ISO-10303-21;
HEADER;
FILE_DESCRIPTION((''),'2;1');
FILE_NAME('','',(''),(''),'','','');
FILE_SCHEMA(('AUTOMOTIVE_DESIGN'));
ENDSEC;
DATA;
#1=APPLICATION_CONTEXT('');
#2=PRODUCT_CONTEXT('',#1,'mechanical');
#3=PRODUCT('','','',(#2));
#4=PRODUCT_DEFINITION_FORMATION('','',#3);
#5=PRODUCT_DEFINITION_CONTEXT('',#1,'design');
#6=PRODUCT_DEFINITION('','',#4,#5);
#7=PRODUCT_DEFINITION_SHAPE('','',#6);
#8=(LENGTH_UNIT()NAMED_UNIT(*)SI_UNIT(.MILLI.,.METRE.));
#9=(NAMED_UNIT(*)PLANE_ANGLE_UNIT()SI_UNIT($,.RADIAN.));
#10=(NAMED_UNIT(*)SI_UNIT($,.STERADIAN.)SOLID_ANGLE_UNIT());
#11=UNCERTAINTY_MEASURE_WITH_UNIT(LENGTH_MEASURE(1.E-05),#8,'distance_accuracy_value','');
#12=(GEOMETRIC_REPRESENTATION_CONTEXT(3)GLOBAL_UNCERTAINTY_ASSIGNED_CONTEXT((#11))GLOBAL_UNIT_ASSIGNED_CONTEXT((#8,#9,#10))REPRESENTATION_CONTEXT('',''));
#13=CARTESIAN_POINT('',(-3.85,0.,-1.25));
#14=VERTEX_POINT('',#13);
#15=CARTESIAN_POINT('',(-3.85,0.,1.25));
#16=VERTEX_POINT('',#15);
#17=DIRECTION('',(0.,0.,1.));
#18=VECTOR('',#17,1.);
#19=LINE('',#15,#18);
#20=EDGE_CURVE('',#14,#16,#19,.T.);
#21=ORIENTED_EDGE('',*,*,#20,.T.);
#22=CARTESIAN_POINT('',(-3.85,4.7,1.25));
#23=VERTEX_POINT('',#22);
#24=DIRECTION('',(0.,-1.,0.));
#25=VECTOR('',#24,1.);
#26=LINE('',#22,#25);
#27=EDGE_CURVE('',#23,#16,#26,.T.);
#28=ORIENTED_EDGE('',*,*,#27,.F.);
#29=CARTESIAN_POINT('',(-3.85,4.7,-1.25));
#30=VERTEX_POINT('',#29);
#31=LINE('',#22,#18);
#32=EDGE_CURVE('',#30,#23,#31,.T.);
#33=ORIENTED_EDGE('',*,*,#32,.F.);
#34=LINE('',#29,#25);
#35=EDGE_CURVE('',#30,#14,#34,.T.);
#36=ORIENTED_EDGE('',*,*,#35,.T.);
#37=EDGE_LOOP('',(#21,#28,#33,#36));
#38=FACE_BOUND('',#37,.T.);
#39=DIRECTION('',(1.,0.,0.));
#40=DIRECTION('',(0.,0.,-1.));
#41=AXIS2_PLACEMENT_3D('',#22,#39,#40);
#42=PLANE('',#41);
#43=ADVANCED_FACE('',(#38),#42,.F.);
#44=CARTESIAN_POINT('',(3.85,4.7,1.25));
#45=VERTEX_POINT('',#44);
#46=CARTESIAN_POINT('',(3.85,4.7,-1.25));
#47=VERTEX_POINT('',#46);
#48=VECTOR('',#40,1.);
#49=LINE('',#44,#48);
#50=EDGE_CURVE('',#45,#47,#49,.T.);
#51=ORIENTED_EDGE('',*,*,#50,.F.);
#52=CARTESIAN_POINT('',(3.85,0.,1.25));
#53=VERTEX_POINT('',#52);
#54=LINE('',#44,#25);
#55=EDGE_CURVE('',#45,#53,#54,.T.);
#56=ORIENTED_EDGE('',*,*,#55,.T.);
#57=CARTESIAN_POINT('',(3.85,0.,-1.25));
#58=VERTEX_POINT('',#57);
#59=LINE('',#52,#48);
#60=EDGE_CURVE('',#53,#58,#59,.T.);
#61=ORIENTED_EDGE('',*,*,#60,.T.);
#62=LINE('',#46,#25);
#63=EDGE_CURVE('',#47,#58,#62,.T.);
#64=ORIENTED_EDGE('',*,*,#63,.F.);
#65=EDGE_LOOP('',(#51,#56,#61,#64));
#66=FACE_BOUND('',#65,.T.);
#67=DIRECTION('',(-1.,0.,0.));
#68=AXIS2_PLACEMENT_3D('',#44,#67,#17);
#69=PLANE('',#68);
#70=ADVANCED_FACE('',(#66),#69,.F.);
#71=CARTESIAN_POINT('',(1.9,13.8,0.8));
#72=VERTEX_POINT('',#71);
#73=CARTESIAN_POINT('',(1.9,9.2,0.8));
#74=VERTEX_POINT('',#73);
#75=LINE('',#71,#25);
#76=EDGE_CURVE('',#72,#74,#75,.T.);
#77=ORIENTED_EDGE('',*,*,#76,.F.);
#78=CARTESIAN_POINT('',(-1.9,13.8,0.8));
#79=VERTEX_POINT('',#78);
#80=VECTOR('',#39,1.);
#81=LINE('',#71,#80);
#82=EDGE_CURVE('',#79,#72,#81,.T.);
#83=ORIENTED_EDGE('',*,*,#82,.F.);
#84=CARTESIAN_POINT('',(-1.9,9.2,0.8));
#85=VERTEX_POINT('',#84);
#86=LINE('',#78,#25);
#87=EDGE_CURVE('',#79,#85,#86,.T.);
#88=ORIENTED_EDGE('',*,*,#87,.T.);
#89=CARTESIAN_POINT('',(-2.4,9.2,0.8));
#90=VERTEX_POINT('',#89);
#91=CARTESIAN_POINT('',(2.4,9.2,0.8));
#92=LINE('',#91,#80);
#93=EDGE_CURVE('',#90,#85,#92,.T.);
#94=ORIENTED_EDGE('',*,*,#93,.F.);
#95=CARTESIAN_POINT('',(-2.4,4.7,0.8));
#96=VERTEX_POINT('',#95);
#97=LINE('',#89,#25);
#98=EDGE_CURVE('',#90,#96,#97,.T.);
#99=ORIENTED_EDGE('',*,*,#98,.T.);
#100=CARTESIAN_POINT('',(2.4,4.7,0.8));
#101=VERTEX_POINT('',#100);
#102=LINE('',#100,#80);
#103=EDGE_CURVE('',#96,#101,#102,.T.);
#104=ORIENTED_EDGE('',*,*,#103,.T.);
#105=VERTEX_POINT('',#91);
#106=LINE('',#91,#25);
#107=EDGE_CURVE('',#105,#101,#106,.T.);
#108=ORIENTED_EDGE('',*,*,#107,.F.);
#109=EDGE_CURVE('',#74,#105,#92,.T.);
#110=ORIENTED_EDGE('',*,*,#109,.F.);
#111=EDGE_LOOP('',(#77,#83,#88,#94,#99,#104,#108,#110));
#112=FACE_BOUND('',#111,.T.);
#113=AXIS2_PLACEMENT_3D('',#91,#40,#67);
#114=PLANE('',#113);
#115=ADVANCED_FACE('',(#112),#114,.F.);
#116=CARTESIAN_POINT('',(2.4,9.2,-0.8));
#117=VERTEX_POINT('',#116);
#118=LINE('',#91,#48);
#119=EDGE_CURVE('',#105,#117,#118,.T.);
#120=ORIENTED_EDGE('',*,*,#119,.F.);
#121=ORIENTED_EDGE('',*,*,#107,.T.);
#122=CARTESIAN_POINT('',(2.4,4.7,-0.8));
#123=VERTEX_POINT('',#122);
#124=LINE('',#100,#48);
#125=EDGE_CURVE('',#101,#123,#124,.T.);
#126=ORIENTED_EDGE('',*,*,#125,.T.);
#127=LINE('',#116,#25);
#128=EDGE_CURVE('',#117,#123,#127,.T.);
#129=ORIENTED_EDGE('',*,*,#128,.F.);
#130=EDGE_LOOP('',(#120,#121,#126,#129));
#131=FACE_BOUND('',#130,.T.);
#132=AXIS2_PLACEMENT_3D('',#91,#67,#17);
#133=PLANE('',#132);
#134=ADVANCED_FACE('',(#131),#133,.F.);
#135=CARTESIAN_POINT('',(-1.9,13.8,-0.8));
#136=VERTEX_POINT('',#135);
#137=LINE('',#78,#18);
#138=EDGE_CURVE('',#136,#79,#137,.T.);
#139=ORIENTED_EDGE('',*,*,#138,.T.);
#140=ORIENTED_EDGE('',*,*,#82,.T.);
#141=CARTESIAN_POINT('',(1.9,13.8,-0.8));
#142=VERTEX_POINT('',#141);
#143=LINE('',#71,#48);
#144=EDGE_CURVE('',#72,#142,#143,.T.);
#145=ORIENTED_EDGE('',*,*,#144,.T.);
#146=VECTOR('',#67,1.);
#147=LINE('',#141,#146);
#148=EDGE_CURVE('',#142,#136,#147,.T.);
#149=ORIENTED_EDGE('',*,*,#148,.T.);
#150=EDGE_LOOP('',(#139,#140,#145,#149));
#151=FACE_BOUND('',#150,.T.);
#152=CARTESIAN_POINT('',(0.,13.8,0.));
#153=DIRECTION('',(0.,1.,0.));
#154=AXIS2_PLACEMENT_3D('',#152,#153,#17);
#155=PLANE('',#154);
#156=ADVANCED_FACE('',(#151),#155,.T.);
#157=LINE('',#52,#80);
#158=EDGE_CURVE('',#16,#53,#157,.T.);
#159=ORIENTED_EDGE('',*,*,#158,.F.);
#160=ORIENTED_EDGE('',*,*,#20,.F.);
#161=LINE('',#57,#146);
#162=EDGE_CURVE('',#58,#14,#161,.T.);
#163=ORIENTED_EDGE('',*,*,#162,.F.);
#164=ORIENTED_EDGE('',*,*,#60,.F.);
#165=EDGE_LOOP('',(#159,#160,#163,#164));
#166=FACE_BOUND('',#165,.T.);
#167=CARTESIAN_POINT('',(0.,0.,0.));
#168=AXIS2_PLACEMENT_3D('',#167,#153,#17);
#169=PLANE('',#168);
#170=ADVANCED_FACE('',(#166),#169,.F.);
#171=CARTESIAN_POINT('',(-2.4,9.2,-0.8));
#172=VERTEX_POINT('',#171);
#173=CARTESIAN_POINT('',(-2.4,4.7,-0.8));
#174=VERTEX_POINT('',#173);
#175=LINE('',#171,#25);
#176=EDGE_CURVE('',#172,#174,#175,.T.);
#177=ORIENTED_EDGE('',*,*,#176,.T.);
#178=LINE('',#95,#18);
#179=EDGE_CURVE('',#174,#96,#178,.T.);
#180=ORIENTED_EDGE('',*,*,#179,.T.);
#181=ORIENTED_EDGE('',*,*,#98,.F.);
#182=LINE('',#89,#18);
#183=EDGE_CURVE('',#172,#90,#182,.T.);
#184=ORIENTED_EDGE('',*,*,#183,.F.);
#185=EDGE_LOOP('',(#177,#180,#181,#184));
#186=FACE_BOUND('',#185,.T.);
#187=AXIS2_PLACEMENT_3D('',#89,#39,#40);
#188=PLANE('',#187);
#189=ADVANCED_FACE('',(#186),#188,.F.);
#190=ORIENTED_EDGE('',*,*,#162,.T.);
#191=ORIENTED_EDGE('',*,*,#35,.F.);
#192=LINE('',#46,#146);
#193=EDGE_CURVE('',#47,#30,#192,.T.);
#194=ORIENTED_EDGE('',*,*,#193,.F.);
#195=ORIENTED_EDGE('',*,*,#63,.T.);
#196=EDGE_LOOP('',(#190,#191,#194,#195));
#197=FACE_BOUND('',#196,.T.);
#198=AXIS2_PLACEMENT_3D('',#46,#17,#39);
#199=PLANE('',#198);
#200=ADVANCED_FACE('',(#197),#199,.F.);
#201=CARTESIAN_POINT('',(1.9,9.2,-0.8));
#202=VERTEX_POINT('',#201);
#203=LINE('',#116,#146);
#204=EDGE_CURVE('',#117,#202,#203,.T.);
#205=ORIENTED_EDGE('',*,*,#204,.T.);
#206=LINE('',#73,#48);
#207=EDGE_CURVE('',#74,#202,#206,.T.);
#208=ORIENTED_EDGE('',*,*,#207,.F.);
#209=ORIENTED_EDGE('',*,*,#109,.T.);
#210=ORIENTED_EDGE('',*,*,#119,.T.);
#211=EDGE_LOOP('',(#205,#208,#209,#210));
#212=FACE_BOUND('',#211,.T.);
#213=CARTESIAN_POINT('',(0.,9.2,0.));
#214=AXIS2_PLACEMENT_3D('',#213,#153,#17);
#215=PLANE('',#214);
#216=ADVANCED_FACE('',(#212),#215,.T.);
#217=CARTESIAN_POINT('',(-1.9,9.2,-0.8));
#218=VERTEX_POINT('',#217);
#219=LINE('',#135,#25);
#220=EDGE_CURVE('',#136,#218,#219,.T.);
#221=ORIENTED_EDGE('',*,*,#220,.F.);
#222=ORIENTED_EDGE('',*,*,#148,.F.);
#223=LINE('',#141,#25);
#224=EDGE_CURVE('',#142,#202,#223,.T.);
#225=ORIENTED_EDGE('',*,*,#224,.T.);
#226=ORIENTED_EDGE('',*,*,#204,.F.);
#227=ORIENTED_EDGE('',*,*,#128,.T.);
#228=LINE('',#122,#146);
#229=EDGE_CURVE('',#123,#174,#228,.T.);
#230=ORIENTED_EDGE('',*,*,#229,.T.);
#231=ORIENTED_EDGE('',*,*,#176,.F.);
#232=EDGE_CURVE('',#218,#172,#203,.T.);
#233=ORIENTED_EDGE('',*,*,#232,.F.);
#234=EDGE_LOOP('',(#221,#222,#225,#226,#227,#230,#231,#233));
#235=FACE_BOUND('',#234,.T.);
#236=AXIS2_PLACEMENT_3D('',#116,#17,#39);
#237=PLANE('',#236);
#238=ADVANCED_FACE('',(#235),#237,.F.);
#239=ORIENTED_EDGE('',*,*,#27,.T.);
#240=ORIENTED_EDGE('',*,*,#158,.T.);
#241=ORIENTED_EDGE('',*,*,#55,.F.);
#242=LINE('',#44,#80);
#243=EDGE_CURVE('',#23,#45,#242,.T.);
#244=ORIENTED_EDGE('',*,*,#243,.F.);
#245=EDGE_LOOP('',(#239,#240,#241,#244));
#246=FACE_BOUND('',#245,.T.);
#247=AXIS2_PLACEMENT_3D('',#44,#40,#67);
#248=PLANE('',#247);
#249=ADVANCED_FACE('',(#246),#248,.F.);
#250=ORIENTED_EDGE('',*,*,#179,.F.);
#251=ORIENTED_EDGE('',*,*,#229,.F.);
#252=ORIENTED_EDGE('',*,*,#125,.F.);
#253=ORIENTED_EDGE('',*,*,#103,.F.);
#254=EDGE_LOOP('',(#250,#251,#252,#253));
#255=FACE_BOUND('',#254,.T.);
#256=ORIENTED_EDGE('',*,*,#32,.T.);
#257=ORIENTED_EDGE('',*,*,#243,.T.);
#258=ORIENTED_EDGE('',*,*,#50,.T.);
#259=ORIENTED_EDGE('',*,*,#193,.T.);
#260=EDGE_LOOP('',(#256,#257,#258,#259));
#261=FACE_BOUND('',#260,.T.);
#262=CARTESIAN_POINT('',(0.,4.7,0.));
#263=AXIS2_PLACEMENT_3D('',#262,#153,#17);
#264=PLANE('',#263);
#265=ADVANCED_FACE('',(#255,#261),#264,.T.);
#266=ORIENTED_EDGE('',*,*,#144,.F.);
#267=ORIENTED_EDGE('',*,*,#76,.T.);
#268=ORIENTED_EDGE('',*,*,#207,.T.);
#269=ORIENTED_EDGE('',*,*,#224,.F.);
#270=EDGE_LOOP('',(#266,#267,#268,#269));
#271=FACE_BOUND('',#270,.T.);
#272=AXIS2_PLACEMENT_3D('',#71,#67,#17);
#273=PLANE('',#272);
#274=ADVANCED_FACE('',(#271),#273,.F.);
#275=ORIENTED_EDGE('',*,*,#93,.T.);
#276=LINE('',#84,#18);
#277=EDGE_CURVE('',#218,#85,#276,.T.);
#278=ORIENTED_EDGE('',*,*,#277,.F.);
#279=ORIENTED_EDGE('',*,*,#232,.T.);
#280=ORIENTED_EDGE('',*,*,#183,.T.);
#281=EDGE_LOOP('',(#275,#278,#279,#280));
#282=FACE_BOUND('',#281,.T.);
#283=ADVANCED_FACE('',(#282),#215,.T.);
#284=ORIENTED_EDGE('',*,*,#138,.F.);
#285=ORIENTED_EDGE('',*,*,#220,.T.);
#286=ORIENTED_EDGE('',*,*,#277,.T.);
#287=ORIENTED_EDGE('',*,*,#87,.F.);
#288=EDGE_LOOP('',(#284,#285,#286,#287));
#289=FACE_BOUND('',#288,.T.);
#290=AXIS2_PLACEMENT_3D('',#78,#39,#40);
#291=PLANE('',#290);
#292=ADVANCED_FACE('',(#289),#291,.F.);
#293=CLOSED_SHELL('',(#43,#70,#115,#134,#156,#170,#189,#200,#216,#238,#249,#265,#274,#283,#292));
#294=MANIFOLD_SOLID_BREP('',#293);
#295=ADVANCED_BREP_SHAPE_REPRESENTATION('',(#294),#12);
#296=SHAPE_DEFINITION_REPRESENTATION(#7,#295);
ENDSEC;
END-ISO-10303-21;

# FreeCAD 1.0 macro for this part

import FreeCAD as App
import Part
import Sketcher
from FreeCAD import Vector
Q = App.Units.Quantity


def add_polygon(sketch, points):
    """Adds a closed chain of lines whose ends are joined by coincident constraints."""
    first, n = sketch.GeometryCount, len(points)
    for a, b in zip(points, points[1:] + points[:1]):
        sketch.addGeometry(Part.LineSegment(App.Vector(*a, 0), App.Vector(*b, 0)), False)
    for i in range(n):
        sketch.addConstraint(Sketcher.Constraint("Coincident", first + i, 2, first + (i + 1) % n, 1))

doc = App.newDocument("Part")
body = doc.addObject("PartDesign::Body", "Body")

# Sketch on XZ plane
sketch1 = body.newObject("Sketcher::SketchObject", "Sketch")
sketch1.AttachmentSupport = (doc.getObject("XZ_Plane"), [""])
sketch1.MapMode = "FlatFace"
add_polygon(sketch1, [(-3.85, -1.25), (-3.85, 1.25), (3.85, 1.25), (3.85, -1.25)])  # lines 0-3
sketch1.addConstraint(Sketcher.Constraint("Vertical", 0))
sketch1.addConstraint(Sketcher.Constraint("Horizontal", 1))
sketch1.addConstraint(Sketcher.Constraint("Vertical", 2))
sketch1.addConstraint(Sketcher.Constraint("Horizontal", 3))
sketch1.addConstraint(Sketcher.Constraint("Symmetric", 0, 2, 2, 2, -1, 1))
sketch1.addConstraint(Sketcher.Constraint("DistanceX", 1, 1, 1, 2, Q("7.7 mm")))
sketch1.addConstraint(Sketcher.Constraint("DistanceY", 0, 1, 0, 2, Q("2.5 mm")))
pad1 = body.newObject("PartDesign::Pad", "Pad")
pad1.Profile = sketch1
pad1.Length = 4.7
pad1.Reversed = True

# Sketch on XZ plane
sketch2 = body.newObject("Sketcher::SketchObject", "Sketch001")
sketch2.AttachmentSupport = (doc.getObject("XZ_Plane"), [""])
sketch2.MapMode = "FlatFace"
sketch2.AttachmentOffset = App.Placement(Vector(0, 0, -4.7), App.Rotation())
add_polygon(sketch2, [(-2.4, -0.8), (-2.4, 0.8), (2.4, 0.8), (2.4, -0.8)])  # lines 0-3
sketch2.addConstraint(Sketcher.Constraint("Vertical", 0))
sketch2.addConstraint(Sketcher.Constraint("Horizontal", 1))
sketch2.addConstraint(Sketcher.Constraint("Vertical", 2))
sketch2.addConstraint(Sketcher.Constraint("Horizontal", 3))
sketch2.addConstraint(Sketcher.Constraint("Symmetric", 0, 2, 2, 2, -1, 1))
sketch2.addConstraint(Sketcher.Constraint("DistanceX", 1, 1, 1, 2, Q("4.8 mm")))
sketch2.addConstraint(Sketcher.Constraint("DistanceY", 0, 1, 0, 2, Q("1.6 mm")))
pad2 = body.newObject("PartDesign::Pad", "Pad001")
pad2.Profile = sketch2
pad2.Length = 4.5
pad2.Reversed = True

# Sketch on XZ plane
sketch3 = body.newObject("Sketcher::SketchObject", "Sketch002")
sketch3.AttachmentSupport = (doc.getObject("XZ_Plane"), [""])
sketch3.MapMode = "FlatFace"
sketch3.AttachmentOffset = App.Placement(Vector(0, 0, -9.2), App.Rotation())
add_polygon(sketch3, [(-1.9, -0.8), (-1.9, 0.8), (1.9, 0.8), (1.9, -0.8)])  # lines 0-3
sketch3.addConstraint(Sketcher.Constraint("Vertical", 0))
sketch3.addConstraint(Sketcher.Constraint("Horizontal", 1))
sketch3.addConstraint(Sketcher.Constraint("Vertical", 2))
sketch3.addConstraint(Sketcher.Constraint("Horizontal", 3))
sketch3.addConstraint(Sketcher.Constraint("Symmetric", 0, 2, 2, 2, -1, 1))
sketch3.addConstraint(Sketcher.Constraint("DistanceX", 1, 1, 1, 2, Q("3.8 mm")))
sketch3.addConstraint(Sketcher.Constraint("DistanceY", 0, 1, 0, 2, Q("1.6 mm")))
pad3 = body.newObject("PartDesign::Pad", "Pad002")
pad3.Profile = sketch3
pad3.Length = 4.6
pad3.Reversed = True

doc.recompute()
